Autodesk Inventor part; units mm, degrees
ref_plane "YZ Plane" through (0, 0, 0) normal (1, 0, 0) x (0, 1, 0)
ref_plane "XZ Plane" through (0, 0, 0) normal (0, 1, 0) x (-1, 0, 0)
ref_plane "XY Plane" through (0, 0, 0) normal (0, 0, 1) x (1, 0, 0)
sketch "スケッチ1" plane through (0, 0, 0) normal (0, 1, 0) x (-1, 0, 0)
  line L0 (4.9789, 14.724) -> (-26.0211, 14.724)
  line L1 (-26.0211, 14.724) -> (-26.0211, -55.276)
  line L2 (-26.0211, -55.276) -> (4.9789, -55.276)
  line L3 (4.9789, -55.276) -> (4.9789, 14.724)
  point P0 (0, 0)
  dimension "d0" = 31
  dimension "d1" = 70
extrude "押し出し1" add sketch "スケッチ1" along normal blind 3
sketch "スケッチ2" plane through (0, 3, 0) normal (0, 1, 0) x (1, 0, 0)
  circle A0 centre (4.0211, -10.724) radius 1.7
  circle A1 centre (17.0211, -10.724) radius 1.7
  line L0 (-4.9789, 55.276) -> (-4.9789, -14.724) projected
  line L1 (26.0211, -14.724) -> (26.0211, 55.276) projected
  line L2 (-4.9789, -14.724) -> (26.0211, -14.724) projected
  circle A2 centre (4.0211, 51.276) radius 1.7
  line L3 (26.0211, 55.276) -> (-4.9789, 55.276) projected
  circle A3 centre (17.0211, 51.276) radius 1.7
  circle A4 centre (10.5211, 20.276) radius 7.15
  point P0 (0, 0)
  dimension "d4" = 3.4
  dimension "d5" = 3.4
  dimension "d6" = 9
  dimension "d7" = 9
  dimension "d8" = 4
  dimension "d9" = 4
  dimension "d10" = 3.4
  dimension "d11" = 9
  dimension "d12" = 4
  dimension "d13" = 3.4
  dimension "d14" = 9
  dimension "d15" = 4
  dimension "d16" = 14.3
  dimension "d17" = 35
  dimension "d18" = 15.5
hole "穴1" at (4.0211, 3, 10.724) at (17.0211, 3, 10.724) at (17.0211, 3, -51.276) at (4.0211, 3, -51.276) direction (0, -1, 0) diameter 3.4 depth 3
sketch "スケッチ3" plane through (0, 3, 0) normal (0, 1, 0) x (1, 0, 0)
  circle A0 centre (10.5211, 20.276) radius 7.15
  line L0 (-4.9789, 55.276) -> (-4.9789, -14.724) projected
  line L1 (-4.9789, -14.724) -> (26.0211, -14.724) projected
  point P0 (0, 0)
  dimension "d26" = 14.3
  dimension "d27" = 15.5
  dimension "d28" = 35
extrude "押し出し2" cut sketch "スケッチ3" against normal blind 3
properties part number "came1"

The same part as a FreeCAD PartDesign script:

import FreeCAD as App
import Part
import Sketcher

doc = App.newDocument("Part")
body = doc.addObject("PartDesign::Body", "Body")

# Sketch on XZ plane
sketch1 = body.newObject("Sketcher::SketchObject", "Sketch")
sketch1.AttachmentSupport = (doc.getObject("XZ_Plane"), [""])
sketch1.MapMode = "FlatFace"
sketch1.addGeometry(Part.LineSegment(App.Vector(-4.9789, -55.276, 0), App.Vector(-4.9789, 14.724, 0)), False)
sketch1.addGeometry(Part.LineSegment(App.Vector(-4.9789, 14.724, 0), App.Vector(26.0211, 14.724, 0)), False)
sketch1.addGeometry(Part.LineSegment(App.Vector(26.0211, 14.724, 0), App.Vector(26.0211, -55.276, 0)), False)
sketch1.addGeometry(Part.LineSegment(App.Vector(26.0211, -55.276, 0), App.Vector(-4.9789, -55.276, 0)), False)
sketch1.addConstraint(Sketcher.Constraint("Coincident", 0, 2, 1, 1))
sketch1.addConstraint(Sketcher.Constraint("Coincident", 1, 2, 2, 1))
sketch1.addConstraint(Sketcher.Constraint("Coincident", 2, 2, 3, 1))
sketch1.addConstraint(Sketcher.Constraint("Coincident", 3, 2, 0, 1))
sketch1.addConstraint(Sketcher.Constraint("Vertical", 0))
sketch1.addConstraint(Sketcher.Constraint("Horizontal", 1))
sketch1.addConstraint(Sketcher.Constraint("Vertical", 2))
sketch1.addConstraint(Sketcher.Constraint("Horizontal", 3))
sketch1.addConstraint(Sketcher.Constraint("DistanceX", 1, 1, 1, 2, 31.0))
sketch1.addConstraint(Sketcher.Constraint("DistanceY", 0, 1, 0, 2, 70.0))
sketch1.addConstraint(Sketcher.Constraint("DistanceX", 0, 2, -1, 1, 4.979))
sketch1.addConstraint(Sketcher.Constraint("DistanceY", -1, 1, 0, 2, 14.724))
pad1 = body.newObject("PartDesign::Pad", "Pad")
pad1.Profile = sketch1
pad1.Length = 3
pad1.Reversed = True

# Sketch on XZ plane
sketch2 = body.newObject("Sketcher::SketchObject", "Sketch001")
sketch2.AttachmentSupport = (doc.getObject("XZ_Plane"), [""])
sketch2.MapMode = "FlatFace"
sketch2.AttachmentOffset = App.Placement(App.Vector(0, 0, -3), App.Rotation())
sketch2.addGeometry(Part.Circle(App.Vector(4.0211, 10.724, 0), App.Vector(0, 0, 1), 1.7), False)
sketch2.addGeometry(Part.Circle(App.Vector(17.0211, 10.724, 0), App.Vector(0, 0, 1), 1.7), False)
sketch2.addGeometry(Part.Circle(App.Vector(17.0211, -51.276, 0), App.Vector(0, 0, 1), 1.7), False)
sketch2.addGeometry(Part.Circle(App.Vector(4.0211, -51.276, 0), App.Vector(0, 0, 1), 1.7), False)
sketch2.addConstraint(Sketcher.Constraint("Equal", 0, 1))
sketch2.addConstraint(Sketcher.Constraint("Equal", 1, 2))
sketch2.addConstraint(Sketcher.Constraint("Equal", 2, 3))
sketch2.addConstraint(Sketcher.Constraint("Horizontal", 0, 3, 1, 3))
sketch2.addConstraint(Sketcher.Constraint("Horizontal", 2, 3, 3, 3))
sketch2.addConstraint(Sketcher.Constraint("Vertical", 1, 3, 2, 3))
sketch2.addConstraint(Sketcher.Constraint("Vertical", 0, 3, 3, 3))
sketch2.addConstraint(Sketcher.Constraint("Diameter", 0, 3.4))
sketch2.addConstraint(Sketcher.Constraint("DistanceX", 0, 3, 1, 3, 13.0))
sketch2.addConstraint(Sketcher.Constraint("DistanceY", 2, 3, 1, 3, 62.0))
sketch2.addConstraint(Sketcher.Constraint("DistanceX", -1, 1, 0, 3, 4.021))
sketch2.addConstraint(Sketcher.Constraint("DistanceY", -1, 1, 0, 3, 10.724))
doc.recompute()
hole = body.newObject("PartDesign::Hole", "Hole")
hole.Profile = sketch2
hole.ThreadType = "None"
hole.Diameter = 3.4
hole.DepthType = "Dimension"
hole.Depth = 3
hole.DrillPoint = "Flat"
hole.Reversed = True

# Sketch on XZ plane
sketch3 = body.newObject("Sketcher::SketchObject", "Sketch002")
sketch3.AttachmentSupport = (doc.getObject("XZ_Plane"), [""])
sketch3.MapMode = "FlatFace"
sketch3.AttachmentOffset = App.Placement(App.Vector(0, 0, -3), App.Rotation())
sketch3.addGeometry(Part.Circle(App.Vector(10.5211, -20.276, 0), App.Vector(0, 0, 1), 7.15), False)
sketch3.addConstraint(Sketcher.Constraint("Diameter", 0, 14.3))
sketch3.addConstraint(Sketcher.Constraint("DistanceX", -1, 1, 0, 3, 10.521))
sketch3.addConstraint(Sketcher.Constraint("DistanceY", 0, 3, -1, 1, 20.276))
pocket1 = body.newObject("PartDesign::Pocket", "Pocket")
pocket1.Profile = sketch3
pocket1.Length = 3
pocket1.Reversed = True

doc.recompute()
